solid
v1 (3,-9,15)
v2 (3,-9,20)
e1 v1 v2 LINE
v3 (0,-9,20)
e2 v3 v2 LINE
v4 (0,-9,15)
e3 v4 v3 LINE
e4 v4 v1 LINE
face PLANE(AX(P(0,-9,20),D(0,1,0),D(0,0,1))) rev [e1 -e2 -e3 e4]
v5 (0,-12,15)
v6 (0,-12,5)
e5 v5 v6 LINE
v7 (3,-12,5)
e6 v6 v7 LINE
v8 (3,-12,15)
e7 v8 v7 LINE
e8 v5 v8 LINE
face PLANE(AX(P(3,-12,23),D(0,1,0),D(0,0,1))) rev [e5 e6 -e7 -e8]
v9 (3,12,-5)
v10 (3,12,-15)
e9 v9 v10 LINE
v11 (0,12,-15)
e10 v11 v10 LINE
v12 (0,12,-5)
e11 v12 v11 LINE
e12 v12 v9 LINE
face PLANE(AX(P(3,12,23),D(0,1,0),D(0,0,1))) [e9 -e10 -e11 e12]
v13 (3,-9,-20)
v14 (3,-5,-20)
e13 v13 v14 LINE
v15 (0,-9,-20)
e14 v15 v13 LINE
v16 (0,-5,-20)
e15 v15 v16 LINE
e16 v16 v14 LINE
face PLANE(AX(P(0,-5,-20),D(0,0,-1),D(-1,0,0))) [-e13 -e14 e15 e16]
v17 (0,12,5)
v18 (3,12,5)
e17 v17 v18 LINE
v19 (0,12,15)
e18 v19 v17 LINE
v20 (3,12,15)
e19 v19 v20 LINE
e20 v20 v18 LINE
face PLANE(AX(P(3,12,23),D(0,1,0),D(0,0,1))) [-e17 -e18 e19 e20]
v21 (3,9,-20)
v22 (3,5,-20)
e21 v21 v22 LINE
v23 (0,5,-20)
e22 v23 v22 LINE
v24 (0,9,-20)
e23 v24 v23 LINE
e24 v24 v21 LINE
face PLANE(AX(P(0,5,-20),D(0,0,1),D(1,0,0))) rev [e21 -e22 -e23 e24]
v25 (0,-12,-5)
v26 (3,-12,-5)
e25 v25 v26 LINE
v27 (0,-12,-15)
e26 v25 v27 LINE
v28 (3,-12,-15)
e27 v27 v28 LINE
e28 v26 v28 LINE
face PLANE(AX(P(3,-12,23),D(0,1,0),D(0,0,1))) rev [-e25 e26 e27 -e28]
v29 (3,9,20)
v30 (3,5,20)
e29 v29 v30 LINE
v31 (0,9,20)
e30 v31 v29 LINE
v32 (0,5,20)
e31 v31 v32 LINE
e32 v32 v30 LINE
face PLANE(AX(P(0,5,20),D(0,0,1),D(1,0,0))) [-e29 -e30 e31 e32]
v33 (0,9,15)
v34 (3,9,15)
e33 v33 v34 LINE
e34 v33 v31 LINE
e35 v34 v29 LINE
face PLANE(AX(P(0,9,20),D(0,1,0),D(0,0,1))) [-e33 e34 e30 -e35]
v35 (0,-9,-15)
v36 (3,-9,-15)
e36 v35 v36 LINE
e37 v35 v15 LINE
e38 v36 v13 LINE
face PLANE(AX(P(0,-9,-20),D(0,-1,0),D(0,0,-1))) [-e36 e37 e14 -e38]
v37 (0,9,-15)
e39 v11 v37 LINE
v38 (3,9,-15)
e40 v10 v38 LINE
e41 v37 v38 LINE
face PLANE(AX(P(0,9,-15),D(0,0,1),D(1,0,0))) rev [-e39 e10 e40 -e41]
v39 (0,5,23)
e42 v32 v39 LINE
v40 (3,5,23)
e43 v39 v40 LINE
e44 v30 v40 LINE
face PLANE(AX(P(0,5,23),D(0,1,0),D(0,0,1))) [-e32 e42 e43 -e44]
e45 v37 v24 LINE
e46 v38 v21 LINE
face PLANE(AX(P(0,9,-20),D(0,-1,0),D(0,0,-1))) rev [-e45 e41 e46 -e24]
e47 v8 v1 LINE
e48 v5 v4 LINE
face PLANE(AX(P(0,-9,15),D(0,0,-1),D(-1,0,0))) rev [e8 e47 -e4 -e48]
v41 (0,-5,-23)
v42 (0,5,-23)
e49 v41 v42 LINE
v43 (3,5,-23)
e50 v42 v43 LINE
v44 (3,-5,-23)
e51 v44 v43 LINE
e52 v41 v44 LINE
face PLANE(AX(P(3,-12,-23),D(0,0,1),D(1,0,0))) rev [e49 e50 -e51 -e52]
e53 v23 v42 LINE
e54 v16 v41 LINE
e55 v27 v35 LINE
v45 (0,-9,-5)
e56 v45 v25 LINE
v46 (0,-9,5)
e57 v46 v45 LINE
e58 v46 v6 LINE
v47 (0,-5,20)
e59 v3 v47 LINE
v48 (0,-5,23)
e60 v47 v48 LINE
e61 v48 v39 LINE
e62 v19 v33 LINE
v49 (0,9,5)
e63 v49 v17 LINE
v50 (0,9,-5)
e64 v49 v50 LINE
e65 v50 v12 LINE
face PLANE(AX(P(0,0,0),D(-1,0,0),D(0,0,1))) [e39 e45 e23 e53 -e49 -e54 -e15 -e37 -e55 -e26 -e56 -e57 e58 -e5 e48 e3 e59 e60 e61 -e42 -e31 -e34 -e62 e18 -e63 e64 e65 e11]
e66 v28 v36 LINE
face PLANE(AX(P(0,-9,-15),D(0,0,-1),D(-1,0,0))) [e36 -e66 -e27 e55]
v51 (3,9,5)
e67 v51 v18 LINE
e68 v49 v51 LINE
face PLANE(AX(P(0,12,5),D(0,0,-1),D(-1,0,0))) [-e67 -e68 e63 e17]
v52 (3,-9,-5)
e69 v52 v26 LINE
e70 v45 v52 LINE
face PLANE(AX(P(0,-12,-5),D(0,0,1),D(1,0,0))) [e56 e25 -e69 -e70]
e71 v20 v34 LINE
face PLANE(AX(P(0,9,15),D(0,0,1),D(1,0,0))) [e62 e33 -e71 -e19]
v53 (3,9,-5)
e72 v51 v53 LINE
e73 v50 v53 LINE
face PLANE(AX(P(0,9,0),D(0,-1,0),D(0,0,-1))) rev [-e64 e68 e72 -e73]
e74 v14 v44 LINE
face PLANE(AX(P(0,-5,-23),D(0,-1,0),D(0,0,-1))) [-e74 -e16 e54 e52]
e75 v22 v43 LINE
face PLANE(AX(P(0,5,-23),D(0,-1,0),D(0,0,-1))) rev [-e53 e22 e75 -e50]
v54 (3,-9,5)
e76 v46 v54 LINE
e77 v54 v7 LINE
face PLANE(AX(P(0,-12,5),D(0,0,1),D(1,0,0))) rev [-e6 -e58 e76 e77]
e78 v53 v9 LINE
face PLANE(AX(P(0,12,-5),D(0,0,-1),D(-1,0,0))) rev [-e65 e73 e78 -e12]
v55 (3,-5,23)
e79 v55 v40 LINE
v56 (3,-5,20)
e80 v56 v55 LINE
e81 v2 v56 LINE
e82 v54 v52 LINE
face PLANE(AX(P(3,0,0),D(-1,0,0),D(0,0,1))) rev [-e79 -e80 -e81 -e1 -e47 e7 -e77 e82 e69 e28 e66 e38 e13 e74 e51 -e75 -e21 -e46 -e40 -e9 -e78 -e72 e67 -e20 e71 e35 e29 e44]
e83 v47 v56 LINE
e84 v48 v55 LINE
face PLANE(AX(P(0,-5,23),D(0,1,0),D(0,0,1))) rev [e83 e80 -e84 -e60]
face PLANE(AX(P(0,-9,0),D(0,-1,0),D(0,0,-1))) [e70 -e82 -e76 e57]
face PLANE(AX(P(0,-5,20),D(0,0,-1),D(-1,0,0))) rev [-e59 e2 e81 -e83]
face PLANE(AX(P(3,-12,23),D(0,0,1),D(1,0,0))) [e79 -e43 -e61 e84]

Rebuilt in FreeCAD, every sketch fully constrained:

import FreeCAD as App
import Part
import Sketcher
from FreeCAD import Vector
Q = App.Units.Quantity

doc = App.newDocument("Part")
body = doc.addObject("PartDesign::Body", "Body")

# Sketch on YZ plane
sketch1 = body.newObject("Sketcher::SketchObject", "Sketch")
sketch1.AttachmentSupport = (doc.getObject("YZ_Plane"), [""])
sketch1.MapMode = "FlatFace"
sketch1.addGeometry(Part.LineSegment(Vector(12, 23, 0), Vector(-12, 23, 0)), False)
sketch1.addGeometry(Part.LineSegment(Vector(-12, 23, 0), Vector(-12, -23, 0)), False)
sketch1.addGeometry(Part.LineSegment(Vector(-12, -23, 0), Vector(12, -23, 0)), False)
sketch1.addGeometry(Part.LineSegment(Vector(12, -23, 0), Vector(12, 23, 0)), False)
sketch1.addConstraint(Sketcher.Constraint("Coincident", 0, 2, 1, 1))
sketch1.addConstraint(Sketcher.Constraint("Coincident", 1, 2, 2, 1))
sketch1.addConstraint(Sketcher.Constraint("Coincident", 2, 2, 3, 1))
sketch1.addConstraint(Sketcher.Constraint("Coincident", 3, 2, 0, 1))
sketch1.addConstraint(Sketcher.Constraint("Horizontal", 0))
sketch1.addConstraint(Sketcher.Constraint("Vertical", 1))
sketch1.addConstraint(Sketcher.Constraint("Horizontal", 2))
sketch1.addConstraint(Sketcher.Constraint("Vertical", 3))
sketch1.addConstraint(Sketcher.Constraint("Symmetric", 0, 2, 2, 2, -1, 1))
sketch1.addConstraint(Sketcher.Constraint("DistanceX", 0, 2, 0, 1, Q("24 mm")))
sketch1.addConstraint(Sketcher.Constraint("DistanceY", 1, 2, 1, 1, Q("46 mm")))
pad1 = body.newObject("PartDesign::Pad", "Pad")
pad1.Profile = sketch1
pad1.Length = 3

# Sketch on YZ plane
sketch2 = body.newObject("Sketcher::SketchObject", "Sketch001")
sketch2.AttachmentSupport = (doc.getObject("YZ_Plane"), [""])
sketch2.MapMode = "FlatFace"
sketch2.AttachmentOffset = App.Placement(Vector(0, 0, 3), App.Rotation())
sketch2.addGeometry(Part.LineSegment(Vector(5, -20, 0), Vector(5, -23, 0)), False)
sketch2.addGeometry(Part.LineSegment(Vector(5, -23, 0), Vector(12, -23, 0)), False)
sketch2.addGeometry(Part.LineSegment(Vector(12, -23, 0), Vector(12, -15, 0)), False)
sketch2.addGeometry(Part.LineSegment(Vector(12, -15, 0), Vector(9, -15, 0)), False)
sketch2.addGeometry(Part.LineSegment(Vector(9, -15, 0), Vector(9, -20, 0)), False)
sketch2.addGeometry(Part.LineSegment(Vector(9, -20, 0), Vector(5, -20, 0)), False)
sketch2.addGeometry(Part.LineSegment(Vector(12, 0, 0), Vector(9, 0, 0)), False)
sketch2.addGeometry(Part.LineSegment(Vector(9, 0, 0), Vector(9, -5, 0)), False)
sketch2.addGeometry(Part.LineSegment(Vector(9, -5, 0), Vector(12, -5, 0)), False)
sketch2.addGeometry(Part.LineSegment(Vector(12, -5, 0), Vector(12, 0, 0)), False)
sketch2.addConstraint(Sketcher.Constraint("Coincident", 0, 2, 1, 1))
sketch2.addConstraint(Sketcher.Constraint("Coincident", 1, 2, 2, 1))
sketch2.addConstraint(Sketcher.Constraint("Coincident", 2, 2, 3, 1))
sketch2.addConstraint(Sketcher.Constraint("Coincident", 3, 2, 4, 1))
sketch2.addConstraint(Sketcher.Constraint("Coincident", 4, 2, 5, 1))
sketch2.addConstraint(Sketcher.Constraint("Coincident", 5, 2, 0, 1))
sketch2.addConstraint(Sketcher.Constraint("Coincident", 6, 2, 7, 1))
sketch2.addConstraint(Sketcher.Constraint("Coincident", 7, 2, 8, 1))
sketch2.addConstraint(Sketcher.Constraint("Coincident", 8, 2, 9, 1))
sketch2.addConstraint(Sketcher.Constraint("Coincident", 9, 2, 6, 1))
sketch2.addConstraint(Sketcher.Constraint("Vertical", 0))
sketch2.addConstraint(Sketcher.Constraint("Horizontal", 1))
sketch2.addConstraint(Sketcher.Constraint("Vertical", 2))
sketch2.addConstraint(Sketcher.Constraint("Horizontal", 3))
sketch2.addConstraint(Sketcher.Constraint("Vertical", 4))
sketch2.addConstraint(Sketcher.Constraint("Horizontal", 5))
sketch2.addConstraint(Sketcher.Constraint("Horizontal", 6))
sketch2.addConstraint(Sketcher.Constraint("Vertical", 7))
sketch2.addConstraint(Sketcher.Constraint("Horizontal", 8))
sketch2.addConstraint(Sketcher.Constraint("Vertical", 9))
sketch2.addConstraint(Sketcher.Constraint("PointOnObject", 6, 2, -1))
sketch2.addConstraint(Sketcher.Constraint("Vertical", 4, 2, 6, 2))
sketch2.addConstraint(Sketcher.Constraint("Vertical", 2, 2, 8, 2))
sketch2.addConstraint(Sketcher.Constraint("Equal", 8, 0))
sketch2.addConstraint(Sketcher.Constraint("Equal", 4, 7))
sketch2.addConstraint(Sketcher.Constraint("DistanceX", 1, 1, 1, 2, Q("7 mm")))
sketch2.addConstraint(Sketcher.Constraint("DistanceX", 3, 2, 3, 1, Q("3 mm")))
sketch2.addConstraint(Sketcher.Constraint("DistanceY", 2, 1, 2, 2, Q("8 mm")))
sketch2.addConstraint(Sketcher.Constraint("DistanceX", -1, 1, 0, 2, Q("5 mm")))
sketch2.addConstraint(Sketcher.Constraint("DistanceY", 0, 2, -1, 1, Q("23 mm")))
pocket1 = body.newObject("PartDesign::Pocket", "Pocket")
pocket1.Profile = sketch2
pocket1.Type = "ThroughAll"
doc.recompute()

mirrored = body.newObject("PartDesign::Mirrored", "Mirrored")
mirrored.Originals = [pocket1]
mirrored.MirrorPlane = (doc.getObject("XZ_Plane"), [""])
body.Tip = mirrored
doc.recompute()

mirrored2 = body.newObject("PartDesign::Mirrored", "Mirrored001")
mirrored2.Originals = [pocket1]
mirrored2.MirrorPlane = (doc.getObject("XY_Plane"), [""])
body.Tip = mirrored2

# Sketch on YZ plane
sketch3 = body.newObject("Sketcher::SketchObject", "Sketch002")
sketch3.AttachmentSupport = (doc.getObject("YZ_Plane"), [""])
sketch3.MapMode = "FlatFace"
sketch3.AttachmentOffset = App.Placement(Vector(0, 0, 3), App.Rotation())
sketch3.addGeometry(Part.LineSegment(Vector(-5, 20, 0), Vector(-5, 23, 0)), False)
sketch3.addGeometry(Part.LineSegment(Vector(-5, 23, 0), Vector(-12, 23, 0)), False)
sketch3.addGeometry(Part.LineSegment(Vector(-12, 23, 0), Vector(-12, 15, 0)), False)
sketch3.addGeometry(Part.LineSegment(Vector(-12, 15, 0), Vector(-9, 15, 0)), False)
sketch3.addGeometry(Part.LineSegment(Vector(-9, 15, 0), Vector(-9, 20, 0)), False)
sketch3.addGeometry(Part.LineSegment(Vector(-9, 20, 0), Vector(-5, 20, 0)), False)
sketch3.addGeometry(Part.LineSegment(Vector(-12, 0, 0), Vector(-9, 0, 0)), False)
sketch3.addGeometry(Part.LineSegment(Vector(-9, 0, 0), Vector(-9, 5, 0)), False)
sketch3.addGeometry(Part.LineSegment(Vector(-9, 5, 0), Vector(-12, 5, 0)), False)
sketch3.addGeometry(Part.LineSegment(Vector(-12, 5, 0), Vector(-12, 0, 0)), False)
sketch3.addConstraint(Sketcher.Constraint("Coincident", 0, 2, 1, 1))
sketch3.addConstraint(Sketcher.Constraint("Coincident", 1, 2, 2, 1))
sketch3.addConstraint(Sketcher.Constraint("Coincident", 2, 2, 3, 1))
sketch3.addConstraint(Sketcher.Constraint("Coincident", 3, 2, 4, 1))
sketch3.addConstraint(Sketcher.Constraint("Coincident", 4, 2, 5, 1))
sketch3.addConstraint(Sketcher.Constraint("Coincident", 5, 2, 0, 1))
sketch3.addConstraint(Sketcher.Constraint("Coincident", 6, 2, 7, 1))
sketch3.addConstraint(Sketcher.Constraint("Coincident", 7, 2, 8, 1))
sketch3.addConstraint(Sketcher.Constraint("Coincident", 8, 2, 9, 1))
sketch3.addConstraint(Sketcher.Constraint("Coincident", 9, 2, 6, 1))
sketch3.addConstraint(Sketcher.Constraint("Vertical", 0))
sketch3.addConstraint(Sketcher.Constraint("Horizontal", 1))
sketch3.addConstraint(Sketcher.Constraint("Vertical", 2))
sketch3.addConstraint(Sketcher.Constraint("Horizontal", 3))
sketch3.addConstraint(Sketcher.Constraint("Vertical", 4))
sketch3.addConstraint(Sketcher.Constraint("Horizontal", 5))
sketch3.addConstraint(Sketcher.Constraint("Horizontal", 6))
sketch3.addConstraint(Sketcher.Constraint("Vertical", 7))
sketch3.addConstraint(Sketcher.Constraint("Horizontal", 8))
sketch3.addConstraint(Sketcher.Constraint("Vertical", 9))
sketch3.addConstraint(Sketcher.Constraint("PointOnObject", 6, 2, -1))
sketch3.addConstraint(Sketcher.Constraint("Vertical", 4, 2, 6, 2))
sketch3.addConstraint(Sketcher.Constraint("Vertical", 2, 2, 8, 2))
sketch3.addConstraint(Sketcher.Constraint("Equal", 8, 0))
sketch3.addConstraint(Sketcher.Constraint("Equal", 4, 7))
sketch3.addConstraint(Sketcher.Constraint("DistanceX", 1, 2, 1, 1, Q("7 mm")))
sketch3.addConstraint(Sketcher.Constraint("DistanceX", 3, 1, 3, 2, Q("3 mm")))
sketch3.addConstraint(Sketcher.Constraint("DistanceY", 2, 2, 2, 1, Q("8 mm")))
sketch3.addConstraint(Sketcher.Constraint("DistanceX", 0, 2, -1, 1, Q("5 mm")))
sketch3.addConstraint(Sketcher.Constraint("DistanceY", -1, 1, 0, 2, Q("23 mm")))
pocket2 = body.newObject("PartDesign::Pocket", "Pocket001")
pocket2.Profile = sketch3
pocket2.Type = "ThroughAll"

doc.recompute()
